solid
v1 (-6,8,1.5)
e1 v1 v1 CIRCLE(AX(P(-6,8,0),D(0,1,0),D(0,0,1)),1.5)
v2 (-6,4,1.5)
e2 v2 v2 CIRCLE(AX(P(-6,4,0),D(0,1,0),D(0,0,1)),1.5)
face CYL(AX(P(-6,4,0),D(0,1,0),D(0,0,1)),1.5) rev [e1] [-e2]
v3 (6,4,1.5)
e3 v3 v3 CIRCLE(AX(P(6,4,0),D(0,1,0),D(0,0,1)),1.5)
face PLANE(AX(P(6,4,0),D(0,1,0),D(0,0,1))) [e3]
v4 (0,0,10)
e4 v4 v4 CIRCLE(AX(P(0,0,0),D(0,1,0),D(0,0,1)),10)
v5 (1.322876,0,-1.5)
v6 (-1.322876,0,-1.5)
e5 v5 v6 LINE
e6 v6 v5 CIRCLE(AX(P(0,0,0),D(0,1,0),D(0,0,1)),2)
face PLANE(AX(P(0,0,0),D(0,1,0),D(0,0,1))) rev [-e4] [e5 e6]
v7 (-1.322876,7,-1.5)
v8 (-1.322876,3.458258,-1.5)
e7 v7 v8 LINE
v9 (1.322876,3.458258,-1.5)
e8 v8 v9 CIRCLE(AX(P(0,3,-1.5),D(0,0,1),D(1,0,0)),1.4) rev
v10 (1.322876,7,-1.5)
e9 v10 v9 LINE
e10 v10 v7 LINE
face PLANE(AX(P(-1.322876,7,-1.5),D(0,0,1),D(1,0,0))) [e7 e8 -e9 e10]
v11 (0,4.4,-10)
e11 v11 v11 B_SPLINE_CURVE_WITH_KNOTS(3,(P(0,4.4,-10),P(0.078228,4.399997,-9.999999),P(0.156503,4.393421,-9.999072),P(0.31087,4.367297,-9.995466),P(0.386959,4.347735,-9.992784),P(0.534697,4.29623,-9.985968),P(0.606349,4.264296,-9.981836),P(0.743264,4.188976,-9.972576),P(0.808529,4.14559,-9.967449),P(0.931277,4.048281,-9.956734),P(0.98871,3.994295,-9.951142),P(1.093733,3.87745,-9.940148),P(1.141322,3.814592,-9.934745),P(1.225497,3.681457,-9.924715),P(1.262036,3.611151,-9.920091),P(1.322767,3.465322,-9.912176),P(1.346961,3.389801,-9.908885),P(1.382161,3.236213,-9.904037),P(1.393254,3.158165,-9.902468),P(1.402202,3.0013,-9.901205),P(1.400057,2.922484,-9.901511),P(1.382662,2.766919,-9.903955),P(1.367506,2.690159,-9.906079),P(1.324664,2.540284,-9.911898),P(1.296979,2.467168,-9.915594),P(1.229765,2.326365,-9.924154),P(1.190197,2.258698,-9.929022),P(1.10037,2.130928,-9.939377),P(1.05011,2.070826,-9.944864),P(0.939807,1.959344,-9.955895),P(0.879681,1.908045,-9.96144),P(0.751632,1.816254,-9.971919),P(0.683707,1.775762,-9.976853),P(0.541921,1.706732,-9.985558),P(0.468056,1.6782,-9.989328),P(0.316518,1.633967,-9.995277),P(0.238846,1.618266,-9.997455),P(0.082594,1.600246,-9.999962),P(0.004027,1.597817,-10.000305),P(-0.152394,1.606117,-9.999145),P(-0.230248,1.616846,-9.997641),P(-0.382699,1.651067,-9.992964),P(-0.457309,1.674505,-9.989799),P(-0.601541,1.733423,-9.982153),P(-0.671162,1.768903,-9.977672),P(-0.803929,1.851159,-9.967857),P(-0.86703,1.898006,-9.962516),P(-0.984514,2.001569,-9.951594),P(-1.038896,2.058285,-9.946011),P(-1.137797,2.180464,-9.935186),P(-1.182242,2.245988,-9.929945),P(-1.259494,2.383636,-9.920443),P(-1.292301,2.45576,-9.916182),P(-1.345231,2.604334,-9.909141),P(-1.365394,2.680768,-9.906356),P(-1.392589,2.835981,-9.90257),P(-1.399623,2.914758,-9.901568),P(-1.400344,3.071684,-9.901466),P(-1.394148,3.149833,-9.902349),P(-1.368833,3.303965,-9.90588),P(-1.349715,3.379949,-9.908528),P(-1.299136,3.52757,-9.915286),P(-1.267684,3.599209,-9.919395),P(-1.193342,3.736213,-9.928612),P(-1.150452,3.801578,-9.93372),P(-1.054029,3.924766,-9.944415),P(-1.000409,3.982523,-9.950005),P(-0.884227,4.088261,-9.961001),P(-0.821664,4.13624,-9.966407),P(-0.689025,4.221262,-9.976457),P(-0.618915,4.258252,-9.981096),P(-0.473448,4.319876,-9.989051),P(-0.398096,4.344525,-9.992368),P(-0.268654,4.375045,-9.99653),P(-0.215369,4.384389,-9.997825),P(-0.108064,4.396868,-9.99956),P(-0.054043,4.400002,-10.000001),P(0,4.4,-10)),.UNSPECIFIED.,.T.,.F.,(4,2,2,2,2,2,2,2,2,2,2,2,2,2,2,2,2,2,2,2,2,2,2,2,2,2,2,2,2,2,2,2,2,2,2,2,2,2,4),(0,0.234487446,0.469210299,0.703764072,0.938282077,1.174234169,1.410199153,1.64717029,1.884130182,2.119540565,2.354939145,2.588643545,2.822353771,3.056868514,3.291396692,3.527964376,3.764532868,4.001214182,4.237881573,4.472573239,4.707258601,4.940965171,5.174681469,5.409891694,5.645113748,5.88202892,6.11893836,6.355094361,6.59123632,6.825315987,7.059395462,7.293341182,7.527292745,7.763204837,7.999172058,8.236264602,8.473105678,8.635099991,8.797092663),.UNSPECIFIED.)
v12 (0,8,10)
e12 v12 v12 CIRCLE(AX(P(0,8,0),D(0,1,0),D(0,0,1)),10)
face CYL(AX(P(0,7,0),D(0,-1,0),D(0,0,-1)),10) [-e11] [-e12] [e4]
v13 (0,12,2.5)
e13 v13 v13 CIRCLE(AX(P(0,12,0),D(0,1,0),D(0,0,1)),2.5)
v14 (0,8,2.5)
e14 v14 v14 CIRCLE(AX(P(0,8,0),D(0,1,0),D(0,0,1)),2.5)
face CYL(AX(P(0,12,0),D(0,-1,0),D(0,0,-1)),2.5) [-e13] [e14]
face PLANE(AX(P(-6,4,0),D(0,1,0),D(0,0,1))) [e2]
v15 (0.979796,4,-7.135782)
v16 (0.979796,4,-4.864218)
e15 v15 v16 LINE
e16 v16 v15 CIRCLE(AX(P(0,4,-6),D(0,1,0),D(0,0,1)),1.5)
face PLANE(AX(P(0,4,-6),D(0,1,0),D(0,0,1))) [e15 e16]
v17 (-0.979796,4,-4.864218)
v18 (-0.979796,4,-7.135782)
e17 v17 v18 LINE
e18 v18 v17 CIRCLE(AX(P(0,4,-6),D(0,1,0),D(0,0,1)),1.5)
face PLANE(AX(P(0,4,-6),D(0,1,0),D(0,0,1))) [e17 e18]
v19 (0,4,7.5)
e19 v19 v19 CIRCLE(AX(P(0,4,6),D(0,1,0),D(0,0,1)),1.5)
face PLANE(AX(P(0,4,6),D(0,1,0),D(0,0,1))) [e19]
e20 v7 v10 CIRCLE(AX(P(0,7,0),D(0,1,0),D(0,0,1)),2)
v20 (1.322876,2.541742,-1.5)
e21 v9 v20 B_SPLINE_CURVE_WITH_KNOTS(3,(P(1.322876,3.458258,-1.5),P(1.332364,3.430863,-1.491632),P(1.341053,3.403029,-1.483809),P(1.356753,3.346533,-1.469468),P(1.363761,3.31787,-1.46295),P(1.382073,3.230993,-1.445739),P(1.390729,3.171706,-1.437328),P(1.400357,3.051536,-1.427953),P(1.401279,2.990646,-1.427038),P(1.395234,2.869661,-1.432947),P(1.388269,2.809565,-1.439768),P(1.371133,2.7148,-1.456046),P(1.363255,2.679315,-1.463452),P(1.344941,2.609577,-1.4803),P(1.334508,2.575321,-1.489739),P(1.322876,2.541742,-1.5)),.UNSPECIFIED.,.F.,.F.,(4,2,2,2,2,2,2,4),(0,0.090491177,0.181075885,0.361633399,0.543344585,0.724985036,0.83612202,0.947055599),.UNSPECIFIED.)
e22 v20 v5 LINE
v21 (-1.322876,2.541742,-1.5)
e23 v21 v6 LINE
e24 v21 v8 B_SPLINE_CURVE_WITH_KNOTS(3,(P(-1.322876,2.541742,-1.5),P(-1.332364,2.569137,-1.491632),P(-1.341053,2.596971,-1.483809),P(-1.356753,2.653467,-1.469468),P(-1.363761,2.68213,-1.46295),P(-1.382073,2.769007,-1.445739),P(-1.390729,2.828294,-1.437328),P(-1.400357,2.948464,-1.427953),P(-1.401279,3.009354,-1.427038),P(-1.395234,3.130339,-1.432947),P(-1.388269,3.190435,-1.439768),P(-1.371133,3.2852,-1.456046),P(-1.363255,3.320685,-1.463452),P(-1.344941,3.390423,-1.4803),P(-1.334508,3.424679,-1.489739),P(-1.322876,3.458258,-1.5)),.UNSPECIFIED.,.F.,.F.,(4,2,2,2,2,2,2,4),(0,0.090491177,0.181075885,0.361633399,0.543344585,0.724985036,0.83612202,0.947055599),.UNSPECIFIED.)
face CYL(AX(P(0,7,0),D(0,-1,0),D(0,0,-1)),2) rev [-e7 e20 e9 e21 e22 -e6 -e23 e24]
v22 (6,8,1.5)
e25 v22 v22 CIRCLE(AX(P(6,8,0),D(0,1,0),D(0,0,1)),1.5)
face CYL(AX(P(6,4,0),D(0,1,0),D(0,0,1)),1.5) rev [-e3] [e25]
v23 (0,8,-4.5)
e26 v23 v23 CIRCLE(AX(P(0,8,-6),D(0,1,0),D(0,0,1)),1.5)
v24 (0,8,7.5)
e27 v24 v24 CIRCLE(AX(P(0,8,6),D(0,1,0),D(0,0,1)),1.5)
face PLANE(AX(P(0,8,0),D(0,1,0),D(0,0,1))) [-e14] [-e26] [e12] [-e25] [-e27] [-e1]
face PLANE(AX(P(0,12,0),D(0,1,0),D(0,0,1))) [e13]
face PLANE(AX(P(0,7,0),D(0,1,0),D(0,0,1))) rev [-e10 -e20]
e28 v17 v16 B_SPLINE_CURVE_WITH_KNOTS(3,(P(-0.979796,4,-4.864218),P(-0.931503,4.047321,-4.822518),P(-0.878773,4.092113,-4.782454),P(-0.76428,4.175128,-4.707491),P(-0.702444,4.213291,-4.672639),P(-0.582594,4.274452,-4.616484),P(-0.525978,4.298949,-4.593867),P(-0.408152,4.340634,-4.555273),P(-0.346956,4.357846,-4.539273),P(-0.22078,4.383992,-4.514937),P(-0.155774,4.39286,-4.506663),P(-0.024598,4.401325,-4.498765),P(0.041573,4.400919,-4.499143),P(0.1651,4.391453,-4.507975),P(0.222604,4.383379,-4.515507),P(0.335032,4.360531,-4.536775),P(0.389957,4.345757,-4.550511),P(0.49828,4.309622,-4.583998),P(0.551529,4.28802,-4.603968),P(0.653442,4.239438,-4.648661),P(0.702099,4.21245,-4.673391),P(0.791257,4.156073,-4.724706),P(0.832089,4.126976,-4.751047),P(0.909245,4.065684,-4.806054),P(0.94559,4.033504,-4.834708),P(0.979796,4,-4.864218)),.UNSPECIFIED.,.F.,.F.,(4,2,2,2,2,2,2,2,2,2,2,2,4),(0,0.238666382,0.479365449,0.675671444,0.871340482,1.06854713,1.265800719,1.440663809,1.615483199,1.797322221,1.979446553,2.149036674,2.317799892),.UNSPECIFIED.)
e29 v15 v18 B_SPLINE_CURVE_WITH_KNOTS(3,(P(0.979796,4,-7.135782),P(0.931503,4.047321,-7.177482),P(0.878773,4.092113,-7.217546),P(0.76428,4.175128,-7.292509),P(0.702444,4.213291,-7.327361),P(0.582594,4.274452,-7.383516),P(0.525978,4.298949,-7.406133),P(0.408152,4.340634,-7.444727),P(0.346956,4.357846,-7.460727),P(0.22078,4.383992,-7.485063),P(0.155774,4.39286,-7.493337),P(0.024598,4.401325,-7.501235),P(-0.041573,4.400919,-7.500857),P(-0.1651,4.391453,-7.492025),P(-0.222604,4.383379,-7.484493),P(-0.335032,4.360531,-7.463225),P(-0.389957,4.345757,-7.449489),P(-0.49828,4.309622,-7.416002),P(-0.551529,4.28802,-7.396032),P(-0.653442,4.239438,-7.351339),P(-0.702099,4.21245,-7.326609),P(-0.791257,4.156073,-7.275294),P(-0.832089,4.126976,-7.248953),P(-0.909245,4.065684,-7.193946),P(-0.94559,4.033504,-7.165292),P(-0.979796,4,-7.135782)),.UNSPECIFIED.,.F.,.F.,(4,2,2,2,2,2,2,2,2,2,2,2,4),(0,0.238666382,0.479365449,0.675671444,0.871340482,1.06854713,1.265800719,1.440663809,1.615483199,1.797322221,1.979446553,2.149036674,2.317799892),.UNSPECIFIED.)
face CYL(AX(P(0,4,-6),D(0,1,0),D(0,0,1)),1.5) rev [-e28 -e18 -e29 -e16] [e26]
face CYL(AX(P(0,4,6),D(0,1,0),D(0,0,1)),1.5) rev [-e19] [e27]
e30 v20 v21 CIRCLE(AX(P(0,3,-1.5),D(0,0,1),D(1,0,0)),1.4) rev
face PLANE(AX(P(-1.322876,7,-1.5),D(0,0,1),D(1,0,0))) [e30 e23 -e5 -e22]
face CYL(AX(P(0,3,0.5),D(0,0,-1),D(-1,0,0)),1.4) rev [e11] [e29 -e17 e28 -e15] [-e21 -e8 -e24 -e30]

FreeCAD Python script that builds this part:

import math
import FreeCAD as App
import Part
import Sketcher
from FreeCAD import Vector
Q = App.Units.Quantity

doc = App.newDocument("Part")
params = doc.addObject("Spreadsheet::Sheet", "Params")
for row, (alias, value) in enumerate([
    ("sketch1_diameter", "20 mm"),
    ("sketch1_radius", "2 mm"),
    ("pad1_length", "7 mm"),
    ("sketch2_diameter", "20 mm"),
    ("pad2_length", "1 mm"),
    ("sketch3_diameter", "5 mm"),
    ("pad3_length", "4 mm"),
    ("sketch4_diameter", "3 mm"),
    ("pocket1_length", "4 mm"),
    ("sketch5_diameter", "2.8 mm"),
    ("pocket2_length", "2 mm"),
    ("pocket2_length2", "20.397165 mm"),
], start=1):
    params.set(f"A{row}", alias)
    params.set(f"B{row}", "=" + value)
    params.setAlias(f"B{row}", alias)

body = doc.addObject("PartDesign::Body", "Body")

sketch1 = doc.addObject("Sketcher::SketchObject", "Sketch")
body.addObject(sketch1)
sketch1.AttachmentSupport = (doc.XZ_Plane, [""])
sketch1.MapMode = "FlatFace"
sketch1.addGeometry([
    Part.Circle(Vector(0, 0, 0), Vector(0, 0, 1), 10),
    Part.ArcOfCircle(Part.Circle(Vector(0, 0, 0), Vector(0, 0, 1), 2), math.radians(-49), math.radians(229)),
    Part.LineSegment(Vector(-1.3, -1.5, 0), Vector(1.3, -1.5, 0)),
], False)
sketch1.addConstraint([
    Sketcher.Constraint("Coincident", 1, 1, 2, 2),
    Sketcher.Constraint("Coincident", 2, 1, 1, 2),
    Sketcher.Constraint("Horizontal", 2),
    Sketcher.Constraint("Coincident", 0, 3, -1, 1),
    Sketcher.Constraint("Coincident", 1, 3, -1, 1),
    Sketcher.Constraint("Diameter", 0, Q("20 mm")),
    Sketcher.Constraint("Radius", 1, Q("2 mm")),
    Sketcher.Constraint("DistanceY", 1, 1, -1, 1, Q("1.5 mm")),
])
sketch1.setExpression("Constraints[5]", "Params.sketch1_diameter")
sketch1.setExpression("Constraints[6]", "Params.sketch1_radius")
pad1 = doc.addObject("PartDesign::Pad", "Pad")
body.addObject(pad1)
pad1.Profile = sketch1
pad1.setExpression("Length", "Params.pad1_length")
pad1.Reversed = True

sketch2 = doc.addObject("Sketcher::SketchObject", "Sketch001")
body.addObject(sketch2)
sketch2.AttachmentSupport = (doc.XZ_Plane, [""])
sketch2.MapMode = "FlatFace"
sketch2.AttachmentOffset = App.Placement(Vector(0, 0, -7), App.Rotation())
sketch2.addGeometry(Part.Circle(Vector(0, 0, 0), Vector(0, 0, 1), 10), False)
sketch2.addConstraint([
    Sketcher.Constraint("Coincident", 0, 3, -1, 1),
    Sketcher.Constraint("Diameter", 0, Q("20 mm")),
])
sketch2.setExpression("Constraints[1]", "Params.sketch2_diameter")
pad2 = doc.addObject("PartDesign::Pad", "Pad001")
body.addObject(pad2)
pad2.Profile = sketch2
pad2.setExpression("Length", "Params.pad2_length")
pad2.Reversed = True

sketch3 = doc.addObject("Sketcher::SketchObject", "Sketch002")
body.addObject(sketch3)
sketch3.AttachmentSupport = (doc.XZ_Plane, [""])
sketch3.MapMode = "FlatFace"
sketch3.AttachmentOffset = App.Placement(Vector(0, 0, -8), App.Rotation())
sketch3.addGeometry(Part.Circle(Vector(0, 0, 0), Vector(0, 0, 1), 2.5), False)
sketch3.addConstraint([
    Sketcher.Constraint("Coincident", 0, 3, -1, 1),
    Sketcher.Constraint("Diameter", 0, Q("5 mm")),
])
sketch3.setExpression("Constraints[1]", "Params.sketch3_diameter")
pad3 = doc.addObject("PartDesign::Pad", "Pad002")
body.addObject(pad3)
pad3.Profile = sketch3
pad3.setExpression("Length", "Params.pad3_length")
pad3.Reversed = True

sketch4 = doc.addObject("Sketcher::SketchObject", "Sketch003")
body.addObject(sketch4)
sketch4.AttachmentSupport = (doc.XZ_Plane, [""])
sketch4.MapMode = "FlatFace"
sketch4.AttachmentOffset = App.Placement(Vector(0, 0, -8), App.Rotation())
sketch4.addGeometry([
    Part.Circle(Vector(6, 0, 0), Vector(0, 0, 1), 1.5),
    Part.Circle(Vector(0, 6, 0), Vector(0, 0, 1), 1.5),
    Part.Circle(Vector(-6, 0, 0), Vector(0, 0, 1), 1.5),
    Part.Circle(Vector(0, -6, 0), Vector(0, 0, 1), 1.5),
], False)
sketch4.addConstraint([
    Sketcher.Constraint("Equal", 0, 1),
    Sketcher.Constraint("Equal", 1, 2),
    Sketcher.Constraint("Equal", 2, 3),
    Sketcher.Constraint("Symmetric", 0, 3, 2, 3, -1, 1),
    Sketcher.Constraint("Symmetric", 1, 3, 3, 3, -1, 1),
    Sketcher.Constraint("PointOnObject", 0, 3, -1),
    Sketcher.Constraint("PointOnObject", 1, 3, -2),
    Sketcher.Constraint("Diameter", 0, Q("3 mm")),
    Sketcher.Constraint("DistanceX", -1, 1, 0, 3, Q("6 mm")),
    Sketcher.Constraint("DistanceY", -1, 1, 1, 3, Q("6 mm")),
])
sketch4.setExpression("Constraints[7]", "Params.sketch4_diameter")
pocket1 = doc.addObject("PartDesign::Pocket", "Pocket")
body.addObject(pocket1)
pocket1.Profile = sketch4
pocket1.setExpression("Length", "Params.pocket1_length")
pocket1.Reversed = True

sketch5 = doc.addObject("Sketcher::SketchObject", "Sketch004")
body.addObject(sketch5)
sketch5.AttachmentSupport = (doc.XY_Plane, [""])
sketch5.MapMode = "FlatFace"
sketch5.AttachmentOffset = App.Placement(Vector(0, 0, -1.5), App.Rotation())
sketch5.addGeometry(Part.Circle(Vector(0, 3, 0), Vector(0, 0, 1), 1.4), False)
sketch5.addConstraint([
    Sketcher.Constraint("PointOnObject", 0, 3, -2),
    Sketcher.Constraint("Diameter", 0, Q("2.8 mm")),
    Sketcher.Constraint("DistanceY", -1, 1, 0, 3, Q("3 mm")),
])
sketch5.setExpression("Constraints[1]", "Params.sketch5_diameter")
pocket2 = doc.addObject("PartDesign::Pocket", "Pocket001")
body.addObject(pocket2)
pocket2.Profile = sketch5
pocket2.Type = "TwoLengths"
pocket2.setExpression("Length", "Params.pocket2_length")
pocket2.setExpression("Length2", "Params.pocket2_length2")
pocket2.Reversed = True

doc.recompute()
